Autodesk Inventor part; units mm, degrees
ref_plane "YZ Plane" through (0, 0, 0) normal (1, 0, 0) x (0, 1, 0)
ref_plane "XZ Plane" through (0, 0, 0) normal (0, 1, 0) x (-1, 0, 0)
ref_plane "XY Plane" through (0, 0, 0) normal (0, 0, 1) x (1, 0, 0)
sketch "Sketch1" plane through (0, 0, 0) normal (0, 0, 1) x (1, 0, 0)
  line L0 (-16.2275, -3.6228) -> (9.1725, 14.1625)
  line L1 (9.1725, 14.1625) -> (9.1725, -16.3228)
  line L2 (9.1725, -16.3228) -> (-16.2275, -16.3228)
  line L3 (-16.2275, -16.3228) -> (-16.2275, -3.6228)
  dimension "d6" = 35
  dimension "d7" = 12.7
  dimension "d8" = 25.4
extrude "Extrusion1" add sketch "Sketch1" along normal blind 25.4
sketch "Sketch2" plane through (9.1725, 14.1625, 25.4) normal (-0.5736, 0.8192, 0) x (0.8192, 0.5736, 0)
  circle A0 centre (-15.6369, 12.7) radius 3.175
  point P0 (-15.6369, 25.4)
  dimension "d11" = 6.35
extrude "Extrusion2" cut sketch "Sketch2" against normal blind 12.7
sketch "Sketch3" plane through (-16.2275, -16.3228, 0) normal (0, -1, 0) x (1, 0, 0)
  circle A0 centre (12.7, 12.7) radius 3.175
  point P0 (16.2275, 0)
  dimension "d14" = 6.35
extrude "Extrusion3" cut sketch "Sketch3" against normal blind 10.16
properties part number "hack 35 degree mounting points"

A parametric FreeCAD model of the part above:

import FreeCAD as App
import Part
import Sketcher

V = App.Vector
Q = App.Units.Quantity


def add_polygon(sketch, points):
    """Adds a closed chain of lines whose ends are joined by coincident constraints."""
    first, n = sketch.GeometryCount, len(points)
    for a, b in zip(points, points[1:] + points[:1]):
        sketch.addGeometry(Part.LineSegment(App.Vector(*a, 0), App.Vector(*b, 0)), False)
    for i in range(n):
        sketch.addConstraint(Sketcher.Constraint("Coincident", first + i, 2, first + (i + 1) % n, 1))

doc = App.newDocument("Part")
body = doc.addObject("PartDesign::Body", "Body")

sketch1 = body.newObject("Sketcher::SketchObject", "Sketch")
sketch1.AttachmentSupport = (doc.getObject("XY_Plane"), [""])
sketch1.MapMode = "FlatFace"
add_polygon(sketch1, [(9, 14), (-16, -4), (-16, -16), (9, -16)])
sketch1.addConstraint([
    Sketcher.Constraint("Vertical", 1),
    Sketcher.Constraint("Horizontal", 2),
    Sketcher.Constraint("Vertical", 3),
    Sketcher.Constraint("DistanceX", 2, 1, 2, 2, Q("1 in")),
    Sketcher.Constraint("DistanceY", 1, 2, 1, 1, Q("0.5 in")),
    Sketcher.Constraint("Angle", 0, Q("-145 deg")),
    Sketcher.Constraint("DistanceX", 0, 2, -1, 1, Q("16.2275 mm")),
    Sketcher.Constraint("DistanceY", 0, 2, -1, 1, Q("3.6228 mm")),
])
pad1 = body.newObject("PartDesign::Pad", "Pad")
pad1.Profile = sketch1
pad1.Length = Q("1 in")

sketch2 = body.newObject("Sketcher::SketchObject", "Sketch001")
sketch2.Placement = App.Placement(V(9.1725, 14.1625, 25.4), App.Rotation(V(0.819152044, 0.573576436, 0), V(0, 0, -0.999999999), V(-0.573576436, 0.819152044, 0), "ZXY"))
sketch2.addGeometry(Part.Circle(V(-15.6, 12.7, 0), V(0, 0, 1), 3.2), False)
sketch2.addConstraint([
    Sketcher.Constraint("Diameter", 0, Q("0.25 in")),
    Sketcher.Constraint("DistanceY", -1, 1, 0, 3, Q("0.5 in")),
    Sketcher.Constraint("DistanceX", 0, 3, -1, 1, Q("15.637 mm")),
])
pocket1 = body.newObject("PartDesign::Pocket", "Pocket")
pocket1.Profile = sketch2
pocket1.Length = Q("0.5 in")

sketch3 = body.newObject("Sketcher::SketchObject", "Sketch002")
sketch3.AttachmentSupport = (doc.getObject("XZ_Plane"), [""])
sketch3.MapMode = "FlatFace"
sketch3.AttachmentOffset = App.Placement(V(0, 0, 16.3228), App.Rotation())
sketch3.addGeometry(Part.Circle(V(-3.5, 12.7, 0), V(0, 0, 1), 3.2), False)
sketch3.addConstraint([
    Sketcher.Constraint("Diameter", 0, Q("0.25 in")),
    Sketcher.Constraint("DistanceY", -1, 1, 0, 3, Q("0.5 in")),
    Sketcher.Constraint("DistanceX", 0, 3, -1, 1, Q("3.5275 mm")),
])
pocket2 = body.newObject("PartDesign::Pocket", "Pocket001")
pocket2.Profile = sketch3
pocket2.Length = Q("0.4 in")

doc.recompute()
